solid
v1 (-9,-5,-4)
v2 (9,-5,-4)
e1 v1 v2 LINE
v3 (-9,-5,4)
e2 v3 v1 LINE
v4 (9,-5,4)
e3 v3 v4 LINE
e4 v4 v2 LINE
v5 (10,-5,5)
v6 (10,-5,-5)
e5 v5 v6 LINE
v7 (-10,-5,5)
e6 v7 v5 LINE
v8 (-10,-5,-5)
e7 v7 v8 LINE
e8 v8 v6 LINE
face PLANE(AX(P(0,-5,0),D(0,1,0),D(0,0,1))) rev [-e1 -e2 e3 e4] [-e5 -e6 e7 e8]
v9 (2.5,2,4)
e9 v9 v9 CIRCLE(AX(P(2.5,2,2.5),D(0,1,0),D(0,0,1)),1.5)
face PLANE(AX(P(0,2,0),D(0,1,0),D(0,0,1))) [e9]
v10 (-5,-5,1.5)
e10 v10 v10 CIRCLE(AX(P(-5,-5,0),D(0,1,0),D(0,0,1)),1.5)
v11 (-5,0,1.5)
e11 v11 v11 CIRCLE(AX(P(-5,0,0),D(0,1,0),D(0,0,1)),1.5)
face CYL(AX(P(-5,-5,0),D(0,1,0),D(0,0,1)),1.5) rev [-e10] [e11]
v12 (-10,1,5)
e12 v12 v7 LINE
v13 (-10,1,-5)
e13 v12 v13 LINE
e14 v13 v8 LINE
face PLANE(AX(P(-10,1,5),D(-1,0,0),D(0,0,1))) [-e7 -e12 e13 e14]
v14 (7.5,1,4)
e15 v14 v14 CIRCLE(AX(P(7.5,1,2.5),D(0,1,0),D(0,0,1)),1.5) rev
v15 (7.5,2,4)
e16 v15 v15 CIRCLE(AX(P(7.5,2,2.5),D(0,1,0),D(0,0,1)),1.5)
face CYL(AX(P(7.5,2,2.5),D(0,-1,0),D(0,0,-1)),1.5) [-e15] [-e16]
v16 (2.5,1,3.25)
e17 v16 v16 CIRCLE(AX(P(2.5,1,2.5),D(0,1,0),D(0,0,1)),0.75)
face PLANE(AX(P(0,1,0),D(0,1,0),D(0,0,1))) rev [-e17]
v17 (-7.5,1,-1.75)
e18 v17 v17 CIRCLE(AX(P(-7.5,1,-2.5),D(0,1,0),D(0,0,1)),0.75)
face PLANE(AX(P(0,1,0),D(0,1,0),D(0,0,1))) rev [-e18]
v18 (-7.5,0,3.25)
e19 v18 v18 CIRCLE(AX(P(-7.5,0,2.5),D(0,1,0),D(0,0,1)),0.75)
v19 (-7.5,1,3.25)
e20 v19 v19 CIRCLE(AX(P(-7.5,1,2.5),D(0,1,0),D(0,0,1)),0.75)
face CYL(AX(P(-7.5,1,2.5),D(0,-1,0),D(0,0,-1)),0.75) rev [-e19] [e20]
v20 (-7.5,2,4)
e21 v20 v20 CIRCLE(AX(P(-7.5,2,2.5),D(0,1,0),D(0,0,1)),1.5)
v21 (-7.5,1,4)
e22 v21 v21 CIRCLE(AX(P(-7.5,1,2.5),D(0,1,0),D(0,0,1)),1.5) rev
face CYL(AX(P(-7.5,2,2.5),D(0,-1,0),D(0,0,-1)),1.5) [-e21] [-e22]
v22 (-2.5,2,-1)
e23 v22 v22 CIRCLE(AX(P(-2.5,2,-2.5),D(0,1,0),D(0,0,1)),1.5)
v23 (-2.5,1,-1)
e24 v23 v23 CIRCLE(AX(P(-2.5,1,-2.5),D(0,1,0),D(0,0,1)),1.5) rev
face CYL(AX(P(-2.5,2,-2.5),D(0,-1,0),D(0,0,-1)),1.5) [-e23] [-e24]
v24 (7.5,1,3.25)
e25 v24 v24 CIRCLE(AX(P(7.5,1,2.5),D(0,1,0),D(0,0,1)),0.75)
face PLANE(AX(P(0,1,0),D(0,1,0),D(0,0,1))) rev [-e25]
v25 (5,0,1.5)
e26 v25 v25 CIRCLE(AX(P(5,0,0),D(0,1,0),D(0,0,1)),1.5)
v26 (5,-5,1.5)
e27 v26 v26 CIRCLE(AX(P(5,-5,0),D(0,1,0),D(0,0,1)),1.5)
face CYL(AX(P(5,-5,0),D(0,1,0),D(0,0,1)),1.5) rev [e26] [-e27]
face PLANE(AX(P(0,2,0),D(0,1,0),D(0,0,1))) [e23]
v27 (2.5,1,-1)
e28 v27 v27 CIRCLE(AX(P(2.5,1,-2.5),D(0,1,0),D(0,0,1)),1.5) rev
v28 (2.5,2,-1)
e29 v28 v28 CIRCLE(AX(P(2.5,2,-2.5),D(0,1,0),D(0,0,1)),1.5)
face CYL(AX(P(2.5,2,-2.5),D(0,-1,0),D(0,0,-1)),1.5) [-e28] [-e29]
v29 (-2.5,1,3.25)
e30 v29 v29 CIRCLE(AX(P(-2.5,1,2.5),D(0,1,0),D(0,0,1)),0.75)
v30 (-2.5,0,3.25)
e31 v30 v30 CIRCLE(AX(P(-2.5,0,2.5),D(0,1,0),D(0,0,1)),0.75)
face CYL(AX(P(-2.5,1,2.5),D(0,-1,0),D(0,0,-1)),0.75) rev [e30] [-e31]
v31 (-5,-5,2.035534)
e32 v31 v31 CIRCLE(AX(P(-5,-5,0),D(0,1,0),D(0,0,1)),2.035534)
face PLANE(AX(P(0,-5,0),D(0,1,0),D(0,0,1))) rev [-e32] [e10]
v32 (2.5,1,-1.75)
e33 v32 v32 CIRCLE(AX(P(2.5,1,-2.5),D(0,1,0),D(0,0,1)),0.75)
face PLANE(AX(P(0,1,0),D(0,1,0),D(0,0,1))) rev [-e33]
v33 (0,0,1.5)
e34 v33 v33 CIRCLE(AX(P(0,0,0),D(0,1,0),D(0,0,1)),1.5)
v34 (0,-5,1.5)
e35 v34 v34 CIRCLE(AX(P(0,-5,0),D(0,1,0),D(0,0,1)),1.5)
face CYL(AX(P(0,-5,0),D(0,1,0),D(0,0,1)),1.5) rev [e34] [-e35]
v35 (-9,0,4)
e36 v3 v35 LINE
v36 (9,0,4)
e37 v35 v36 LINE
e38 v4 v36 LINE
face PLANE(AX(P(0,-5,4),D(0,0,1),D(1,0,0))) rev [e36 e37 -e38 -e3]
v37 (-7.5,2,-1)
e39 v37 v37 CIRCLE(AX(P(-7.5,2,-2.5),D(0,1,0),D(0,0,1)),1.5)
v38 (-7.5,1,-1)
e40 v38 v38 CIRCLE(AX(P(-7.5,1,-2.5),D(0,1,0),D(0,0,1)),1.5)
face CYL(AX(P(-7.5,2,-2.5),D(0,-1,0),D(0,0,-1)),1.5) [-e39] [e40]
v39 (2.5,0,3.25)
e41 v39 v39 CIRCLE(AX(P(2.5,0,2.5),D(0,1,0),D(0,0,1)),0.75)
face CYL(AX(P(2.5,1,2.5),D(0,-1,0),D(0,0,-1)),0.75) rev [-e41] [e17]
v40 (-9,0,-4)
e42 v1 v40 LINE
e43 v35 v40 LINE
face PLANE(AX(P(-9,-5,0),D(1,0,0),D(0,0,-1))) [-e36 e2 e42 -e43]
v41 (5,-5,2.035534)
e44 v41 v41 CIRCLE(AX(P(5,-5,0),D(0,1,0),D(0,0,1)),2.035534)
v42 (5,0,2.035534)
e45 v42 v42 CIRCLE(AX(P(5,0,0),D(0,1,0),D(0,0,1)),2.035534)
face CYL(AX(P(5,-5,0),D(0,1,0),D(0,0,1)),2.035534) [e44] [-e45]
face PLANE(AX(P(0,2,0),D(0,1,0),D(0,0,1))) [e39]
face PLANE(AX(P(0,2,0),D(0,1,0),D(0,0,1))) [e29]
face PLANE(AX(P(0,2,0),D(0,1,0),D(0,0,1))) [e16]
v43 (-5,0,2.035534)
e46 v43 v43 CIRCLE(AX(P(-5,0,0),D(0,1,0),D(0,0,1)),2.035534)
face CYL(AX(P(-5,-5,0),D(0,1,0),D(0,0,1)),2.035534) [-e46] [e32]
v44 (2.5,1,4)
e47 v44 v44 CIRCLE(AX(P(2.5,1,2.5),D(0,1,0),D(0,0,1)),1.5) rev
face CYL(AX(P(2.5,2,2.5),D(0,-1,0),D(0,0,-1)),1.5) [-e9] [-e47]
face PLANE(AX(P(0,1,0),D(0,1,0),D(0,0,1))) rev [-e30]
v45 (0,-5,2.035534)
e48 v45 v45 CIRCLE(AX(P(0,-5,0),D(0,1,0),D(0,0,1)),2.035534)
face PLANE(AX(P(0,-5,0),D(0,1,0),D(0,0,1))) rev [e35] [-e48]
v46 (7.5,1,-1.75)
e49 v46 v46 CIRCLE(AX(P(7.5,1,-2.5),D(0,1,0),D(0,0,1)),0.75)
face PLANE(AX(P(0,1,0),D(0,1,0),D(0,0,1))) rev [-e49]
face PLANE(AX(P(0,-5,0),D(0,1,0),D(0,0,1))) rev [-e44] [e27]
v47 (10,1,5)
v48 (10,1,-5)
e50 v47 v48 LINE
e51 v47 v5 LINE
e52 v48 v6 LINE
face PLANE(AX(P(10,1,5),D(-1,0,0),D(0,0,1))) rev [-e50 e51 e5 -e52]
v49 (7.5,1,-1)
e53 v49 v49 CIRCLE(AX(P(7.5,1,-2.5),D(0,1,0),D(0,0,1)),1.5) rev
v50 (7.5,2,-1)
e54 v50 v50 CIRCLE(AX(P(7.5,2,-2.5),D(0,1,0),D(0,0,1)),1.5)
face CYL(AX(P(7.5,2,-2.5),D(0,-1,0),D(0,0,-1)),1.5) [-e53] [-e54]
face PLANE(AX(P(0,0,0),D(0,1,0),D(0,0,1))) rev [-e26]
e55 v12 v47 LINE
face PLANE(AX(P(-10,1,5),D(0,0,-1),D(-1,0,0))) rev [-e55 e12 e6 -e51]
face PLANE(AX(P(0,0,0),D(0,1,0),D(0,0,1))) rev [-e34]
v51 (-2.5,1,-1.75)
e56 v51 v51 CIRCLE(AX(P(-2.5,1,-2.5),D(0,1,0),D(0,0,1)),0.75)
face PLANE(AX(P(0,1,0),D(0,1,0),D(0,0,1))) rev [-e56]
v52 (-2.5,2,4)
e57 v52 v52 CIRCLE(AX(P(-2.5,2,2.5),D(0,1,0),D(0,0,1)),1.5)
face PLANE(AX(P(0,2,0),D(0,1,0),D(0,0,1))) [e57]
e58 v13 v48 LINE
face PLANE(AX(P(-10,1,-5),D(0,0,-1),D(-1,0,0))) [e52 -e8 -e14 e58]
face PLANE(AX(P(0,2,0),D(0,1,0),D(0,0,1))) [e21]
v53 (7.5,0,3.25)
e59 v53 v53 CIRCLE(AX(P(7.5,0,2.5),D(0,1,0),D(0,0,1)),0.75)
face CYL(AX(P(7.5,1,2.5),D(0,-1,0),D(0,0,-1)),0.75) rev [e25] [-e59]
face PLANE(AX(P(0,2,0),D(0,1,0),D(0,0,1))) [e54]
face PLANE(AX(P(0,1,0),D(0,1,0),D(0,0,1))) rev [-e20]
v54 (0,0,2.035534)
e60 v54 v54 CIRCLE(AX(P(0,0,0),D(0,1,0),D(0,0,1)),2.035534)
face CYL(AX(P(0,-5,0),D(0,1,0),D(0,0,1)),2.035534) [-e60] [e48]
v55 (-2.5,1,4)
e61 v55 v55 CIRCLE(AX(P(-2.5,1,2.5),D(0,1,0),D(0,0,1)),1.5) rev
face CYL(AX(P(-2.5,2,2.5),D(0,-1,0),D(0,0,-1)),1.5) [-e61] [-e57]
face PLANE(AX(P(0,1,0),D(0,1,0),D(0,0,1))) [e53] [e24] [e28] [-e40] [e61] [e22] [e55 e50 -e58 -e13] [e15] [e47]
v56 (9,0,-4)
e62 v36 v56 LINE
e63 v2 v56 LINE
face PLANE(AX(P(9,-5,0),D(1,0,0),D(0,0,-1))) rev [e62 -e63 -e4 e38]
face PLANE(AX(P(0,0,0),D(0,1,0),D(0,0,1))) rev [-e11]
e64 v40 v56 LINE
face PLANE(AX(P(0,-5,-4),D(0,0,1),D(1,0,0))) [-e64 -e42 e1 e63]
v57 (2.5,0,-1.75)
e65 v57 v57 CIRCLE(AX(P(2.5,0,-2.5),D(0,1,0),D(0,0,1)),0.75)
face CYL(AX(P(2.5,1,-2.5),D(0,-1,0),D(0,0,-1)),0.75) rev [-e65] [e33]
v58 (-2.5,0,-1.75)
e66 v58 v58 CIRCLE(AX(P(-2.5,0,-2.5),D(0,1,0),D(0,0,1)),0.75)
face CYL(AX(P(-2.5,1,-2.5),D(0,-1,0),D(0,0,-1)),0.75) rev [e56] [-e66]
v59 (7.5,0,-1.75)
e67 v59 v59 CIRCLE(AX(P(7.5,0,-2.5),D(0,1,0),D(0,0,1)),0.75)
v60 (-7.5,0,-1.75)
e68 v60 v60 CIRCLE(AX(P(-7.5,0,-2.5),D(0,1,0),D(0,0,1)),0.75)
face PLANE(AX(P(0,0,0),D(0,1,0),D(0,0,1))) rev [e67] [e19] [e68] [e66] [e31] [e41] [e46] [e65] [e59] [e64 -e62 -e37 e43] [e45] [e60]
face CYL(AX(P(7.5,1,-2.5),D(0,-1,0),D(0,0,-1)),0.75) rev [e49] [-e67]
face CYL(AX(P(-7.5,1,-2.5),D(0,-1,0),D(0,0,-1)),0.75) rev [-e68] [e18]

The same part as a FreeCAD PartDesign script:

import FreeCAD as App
import Part
import Sketcher

V = App.Vector


def add_polygon(sketch, points):
    """Adds a closed chain of lines whose ends are joined by coincident constraints."""
    first, n = sketch.GeometryCount, len(points)
    for a, b in zip(points, points[1:] + points[:1]):
        sketch.addGeometry(Part.LineSegment(App.Vector(*a, 0), App.Vector(*b, 0)), False)
    for i in range(n):
        sketch.addConstraint(Sketcher.Constraint("Coincident", first + i, 2, first + (i + 1) % n, 1))

doc = App.newDocument("Part")
params = doc.addObject("Spreadsheet::Sheet", "Params")
for row, (alias, value) in enumerate([
    ("sketch1_diameter", "3 mm"),
    ("pad1_length", "2 mm"),
    ("sketch2_width", "20 mm"),
    ("sketch2_height", "10 mm"),
    ("pad2_length", "1 mm"),
    ("sketch3_diameter", "1.5 mm"),
    ("pocket1_length", "1 mm"),
    ("sketch4_diameter", "3 mm"),
    ("sketch4_width", "20 mm"),
    ("sketch4_width2", "18 mm"),
    ("sketch4_height", "10 mm"),
    ("sketch4_height2", "8 mm"),
    ("pad3_length", "5 mm"),
], start=1):
    params.set(f"A{row}", alias)
    params.set(f"B{row}", "=" + value)
    params.setAlias(f"B{row}", alias)

body = doc.addObject("PartDesign::Body", "Body")
body.AllowCompound = True

sketch1 = body.newObject("Sketcher::SketchObject", "Sketch")
sketch1.AttachmentSupport = (doc.getObject("XZ_Plane"), [""])
sketch1.MapMode = "FlatFace"
sketch1.addGeometry([
    Part.Circle(V(-7.5, -2.5, 0), V(0, 0, 1), 1.5),
    Part.Circle(V(-2.5, -2.5, 0), V(0, 0, 1), 1.5),
    Part.Circle(V(2.5, -2.5, 0), V(0, 0, 1), 1.5),
    Part.Circle(V(7.5, -2.5, 0), V(0, 0, 1), 1.5),
    Part.Circle(V(7.5, 2.5, 0), V(0, 0, 1), 1.5),
    Part.Circle(V(2.5, 2.5, 0), V(0, 0, 1), 1.5),
    Part.Circle(V(-2.5, 2.5, 0), V(0, 0, 1), 1.5),
    Part.Circle(V(-7.5, 2.5, 0), V(0, 0, 1), 1.5),
], False)
sketch1.addConstraint([
    Sketcher.Constraint("Equal", 0, 1),
    Sketcher.Constraint("Equal", 1, 2),
    Sketcher.Constraint("Equal", 2, 3),
    Sketcher.Constraint("Equal", 3, 4),
    Sketcher.Constraint("Equal", 4, 5),
    Sketcher.Constraint("Equal", 5, 6),
    Sketcher.Constraint("Equal", 6, 7),
    Sketcher.Constraint("Symmetric", 0, 3, 4, 3, -1, 1),
    Sketcher.Constraint("Symmetric", 1, 3, 5, 3, -1, 1),
    Sketcher.Constraint("Symmetric", 2, 3, 6, 3, -1, 1),
    Sketcher.Constraint("Symmetric", 3, 3, 7, 3, -1, 1),
    Sketcher.Constraint("Symmetric", 1, 3, 2, 3, -2),
    Sketcher.Constraint("Symmetric", 0, 3, 3, 3, -2),
    Sketcher.Constraint("Horizontal", 0, 3, 1, 3),
    Sketcher.Constraint("Diameter", 0, 3.0),
    Sketcher.Constraint("DistanceX", 0, 3, 1, 3, 5.0),
    Sketcher.Constraint("DistanceX", 1, 3, 2, 3, 5.0),
    Sketcher.Constraint("DistanceY", 3, 3, 4, 3, 5.0),
])
sketch1.setExpression("Constraints[14]", "Params.sketch1_diameter")
pad1 = body.newObject("PartDesign::Pad", "Pad")
pad1.Profile = sketch1
pad1.setExpression("Length", "Params.pad1_length")
pad1.Reversed = True

sketch2 = body.newObject("Sketcher::SketchObject", "Sketch001")
sketch2.AttachmentSupport = (doc.getObject("XZ_Plane"), [""])
sketch2.MapMode = "FlatFace"
add_polygon(sketch2, [(-10, -5), (-10, 5), (10, 5), (10, -5)])
sketch2.addConstraint([
    Sketcher.Constraint("Vertical", 0),
    Sketcher.Constraint("Horizontal", 1),
    Sketcher.Constraint("Vertical", 2),
    Sketcher.Constraint("Horizontal", 3),
    Sketcher.Constraint("Symmetric", 0, 2, 2, 2, -1, 1),
    Sketcher.Constraint("DistanceX", 1, 1, 1, 2, 20.0),
    Sketcher.Constraint("DistanceY", 0, 1, 0, 2, 10.0),
])
sketch2.setExpression("Constraints[9]", "Params.sketch2_width")
sketch2.setExpression("Constraints[10]", "Params.sketch2_height")
pad2 = body.newObject("PartDesign::Pad", "Pad001")
pad2.Profile = sketch2
pad2.setExpression("Length", "Params.pad2_length")
pad2.Reversed = True

sketch3 = body.newObject("Sketcher::SketchObject", "Sketch002")
sketch3.AttachmentSupport = (doc.getObject("XZ_Plane"), [""])
sketch3.MapMode = "FlatFace"
sketch3.addGeometry([
    Part.Circle(V(-7.5, 2.5, 0), V(0, 0, 1), 0.8),
    Part.Circle(V(-2.5, 2.5, 0), V(0, 0, 1), 0.8),
    Part.Circle(V(2.5, 2.5, 0), V(0, 0, 1), 0.8),
    Part.Circle(V(7.5, 2.5, 0), V(0, 0, 1), 0.8),
    Part.Circle(V(7.5, -2.5, 0), V(0, 0, 1), 0.8),
    Part.Circle(V(2.5, -2.5, 0), V(0, 0, 1), 0.8),
    Part.Circle(V(-2.5, -2.5, 0), V(0, 0, 1), 0.8),
    Part.Circle(V(-7.5, -2.5, 0), V(0, 0, 1), 0.8),
], False)
sketch3.addConstraint([
    Sketcher.Constraint("Equal", 0, 1),
    Sketcher.Constraint("Equal", 1, 2),
    Sketcher.Constraint("Equal", 2, 3),
    Sketcher.Constraint("Equal", 3, 4),
    Sketcher.Constraint("Equal", 4, 5),
    Sketcher.Constraint("Equal", 5, 6),
    Sketcher.Constraint("Equal", 6, 7),
    Sketcher.Constraint("Symmetric", 0, 3, 4, 3, -1, 1),
    Sketcher.Constraint("Symmetric", 1, 3, 5, 3, -1, 1),
    Sketcher.Constraint("Symmetric", 2, 3, 6, 3, -1, 1),
    Sketcher.Constraint("Symmetric", 3, 3, 7, 3, -1, 1),
    Sketcher.Constraint("Symmetric", 1, 3, 2, 3, -2),
    Sketcher.Constraint("Symmetric", 0, 3, 3, 3, -2),
    Sketcher.Constraint("Horizontal", 0, 3, 1, 3),
    Sketcher.Constraint("Diameter", 0, 1.5),
    Sketcher.Constraint("DistanceX", 0, 3, 1, 3, 5.0),
    Sketcher.Constraint("DistanceX", 1, 3, 2, 3, 5.0),
    Sketcher.Constraint("DistanceY", 4, 3, 3, 3, 5.0),
])
sketch3.setExpression("Constraints[14]", "Params.sketch3_diameter")
pocket1 = body.newObject("PartDesign::Pocket", "Pocket")
pocket1.Profile = sketch3
pocket1.setExpression("Length", "Params.pocket1_length")

sketch4 = body.newObject("Sketcher::SketchObject", "Sketch003")
sketch4.AttachmentSupport = (doc.getObject("XZ_Plane"), [""])
sketch4.MapMode = "FlatFace"
add_polygon(sketch4, [(-10, -5), (-10, 5), (10, 5), (10, -5)])
add_polygon(sketch4, [(9, 4), (-9, 4), (-9, -4), (9, -4)])
sketch4.addGeometry(Part.Circle(V(-5, 0, 0), V(0, 0, 1), 2), False)
sketch4.addGeometry(Part.Circle(V(-5, 0, 0), V(0, 0, 1), 1.5), False)
sketch4.addGeometry(Part.Circle(V(0, 0, 0), V(0, 0, 1), 2), False)
sketch4.addGeometry(Part.Circle(V(0, 0, 0), V(0, 0, 1), 1.5), False)
sketch4.addGeometry(Part.Circle(V(5, 0, 0), V(0, 0, 1), 2), False)
sketch4.addGeometry(Part.Circle(V(5, 0, 0), V(0, 0, 1), 1.5), False)
sketch4.addConstraint([
    Sketcher.Constraint("Vertical", 0),
    Sketcher.Constraint("Horizontal", 1),
    Sketcher.Constraint("Vertical", 2),
    Sketcher.Constraint("Horizontal", 3),
    Sketcher.Constraint("Horizontal", 4),
    Sketcher.Constraint("Vertical", 5),
    Sketcher.Constraint("Horizontal", 6),
    Sketcher.Constraint("Vertical", 7),
    Sketcher.Constraint("Coincident", 10, 3, -1, 1),
    Sketcher.Constraint("Coincident", 11, 3, -1, 1),
    Sketcher.Constraint("Coincident", 9, 3, 8, 3),
    Sketcher.Constraint("Coincident", 13, 3, 12, 3),
    Sketcher.Constraint("Equal", 8, 10),
    Sketcher.Constraint("Equal", 9, 11),
    Sketcher.Constraint("Equal", 10, 12),
    Sketcher.Constraint("Equal", 11, 13),
    Sketcher.Constraint("Symmetric", 8, 3, 12, 3, -1, 1),
    Sketcher.Constraint("Symmetric", 0, 2, 2, 2, -1, 1),
    Sketcher.Constraint("Symmetric", 4, 2, 6, 2, -1, 1),
    Sketcher.Constraint("PointOnObject", 8, 3, -1),
    Sketcher.Constraint("Diameter", 9, 3.0),
    Sketcher.Constraint("DistanceX", 1, 1, 1, 2, 20.0),
    Sketcher.Constraint("DistanceX", 4, 2, 4, 1, 18.0),
    Sketcher.Constraint("DistanceY", 0, 1, 0, 2, 10.0),
    Sketcher.Constraint("DistanceY", 5, 2, 5, 1, 8.0),
    Sketcher.Constraint("DistanceX", 8, 3, -1, 1, 5.0),
    Sketcher.Constraint("Diameter", 8, 4.071068),
])
sketch4.setExpression("Constraints[28]", "Params.sketch4_diameter")
sketch4.setExpression("Constraints[29]", "Params.sketch4_width")
sketch4.setExpression("Constraints[30]", "Params.sketch4_width2")
sketch4.setExpression("Constraints[31]", "Params.sketch4_height")
sketch4.setExpression("Constraints[32]", "Params.sketch4_height2")
pad3 = body.newObject("PartDesign::Pad", "Pad002")
pad3.Profile = sketch4
pad3.setExpression("Length", "Params.pad3_length")

doc.recompute()
